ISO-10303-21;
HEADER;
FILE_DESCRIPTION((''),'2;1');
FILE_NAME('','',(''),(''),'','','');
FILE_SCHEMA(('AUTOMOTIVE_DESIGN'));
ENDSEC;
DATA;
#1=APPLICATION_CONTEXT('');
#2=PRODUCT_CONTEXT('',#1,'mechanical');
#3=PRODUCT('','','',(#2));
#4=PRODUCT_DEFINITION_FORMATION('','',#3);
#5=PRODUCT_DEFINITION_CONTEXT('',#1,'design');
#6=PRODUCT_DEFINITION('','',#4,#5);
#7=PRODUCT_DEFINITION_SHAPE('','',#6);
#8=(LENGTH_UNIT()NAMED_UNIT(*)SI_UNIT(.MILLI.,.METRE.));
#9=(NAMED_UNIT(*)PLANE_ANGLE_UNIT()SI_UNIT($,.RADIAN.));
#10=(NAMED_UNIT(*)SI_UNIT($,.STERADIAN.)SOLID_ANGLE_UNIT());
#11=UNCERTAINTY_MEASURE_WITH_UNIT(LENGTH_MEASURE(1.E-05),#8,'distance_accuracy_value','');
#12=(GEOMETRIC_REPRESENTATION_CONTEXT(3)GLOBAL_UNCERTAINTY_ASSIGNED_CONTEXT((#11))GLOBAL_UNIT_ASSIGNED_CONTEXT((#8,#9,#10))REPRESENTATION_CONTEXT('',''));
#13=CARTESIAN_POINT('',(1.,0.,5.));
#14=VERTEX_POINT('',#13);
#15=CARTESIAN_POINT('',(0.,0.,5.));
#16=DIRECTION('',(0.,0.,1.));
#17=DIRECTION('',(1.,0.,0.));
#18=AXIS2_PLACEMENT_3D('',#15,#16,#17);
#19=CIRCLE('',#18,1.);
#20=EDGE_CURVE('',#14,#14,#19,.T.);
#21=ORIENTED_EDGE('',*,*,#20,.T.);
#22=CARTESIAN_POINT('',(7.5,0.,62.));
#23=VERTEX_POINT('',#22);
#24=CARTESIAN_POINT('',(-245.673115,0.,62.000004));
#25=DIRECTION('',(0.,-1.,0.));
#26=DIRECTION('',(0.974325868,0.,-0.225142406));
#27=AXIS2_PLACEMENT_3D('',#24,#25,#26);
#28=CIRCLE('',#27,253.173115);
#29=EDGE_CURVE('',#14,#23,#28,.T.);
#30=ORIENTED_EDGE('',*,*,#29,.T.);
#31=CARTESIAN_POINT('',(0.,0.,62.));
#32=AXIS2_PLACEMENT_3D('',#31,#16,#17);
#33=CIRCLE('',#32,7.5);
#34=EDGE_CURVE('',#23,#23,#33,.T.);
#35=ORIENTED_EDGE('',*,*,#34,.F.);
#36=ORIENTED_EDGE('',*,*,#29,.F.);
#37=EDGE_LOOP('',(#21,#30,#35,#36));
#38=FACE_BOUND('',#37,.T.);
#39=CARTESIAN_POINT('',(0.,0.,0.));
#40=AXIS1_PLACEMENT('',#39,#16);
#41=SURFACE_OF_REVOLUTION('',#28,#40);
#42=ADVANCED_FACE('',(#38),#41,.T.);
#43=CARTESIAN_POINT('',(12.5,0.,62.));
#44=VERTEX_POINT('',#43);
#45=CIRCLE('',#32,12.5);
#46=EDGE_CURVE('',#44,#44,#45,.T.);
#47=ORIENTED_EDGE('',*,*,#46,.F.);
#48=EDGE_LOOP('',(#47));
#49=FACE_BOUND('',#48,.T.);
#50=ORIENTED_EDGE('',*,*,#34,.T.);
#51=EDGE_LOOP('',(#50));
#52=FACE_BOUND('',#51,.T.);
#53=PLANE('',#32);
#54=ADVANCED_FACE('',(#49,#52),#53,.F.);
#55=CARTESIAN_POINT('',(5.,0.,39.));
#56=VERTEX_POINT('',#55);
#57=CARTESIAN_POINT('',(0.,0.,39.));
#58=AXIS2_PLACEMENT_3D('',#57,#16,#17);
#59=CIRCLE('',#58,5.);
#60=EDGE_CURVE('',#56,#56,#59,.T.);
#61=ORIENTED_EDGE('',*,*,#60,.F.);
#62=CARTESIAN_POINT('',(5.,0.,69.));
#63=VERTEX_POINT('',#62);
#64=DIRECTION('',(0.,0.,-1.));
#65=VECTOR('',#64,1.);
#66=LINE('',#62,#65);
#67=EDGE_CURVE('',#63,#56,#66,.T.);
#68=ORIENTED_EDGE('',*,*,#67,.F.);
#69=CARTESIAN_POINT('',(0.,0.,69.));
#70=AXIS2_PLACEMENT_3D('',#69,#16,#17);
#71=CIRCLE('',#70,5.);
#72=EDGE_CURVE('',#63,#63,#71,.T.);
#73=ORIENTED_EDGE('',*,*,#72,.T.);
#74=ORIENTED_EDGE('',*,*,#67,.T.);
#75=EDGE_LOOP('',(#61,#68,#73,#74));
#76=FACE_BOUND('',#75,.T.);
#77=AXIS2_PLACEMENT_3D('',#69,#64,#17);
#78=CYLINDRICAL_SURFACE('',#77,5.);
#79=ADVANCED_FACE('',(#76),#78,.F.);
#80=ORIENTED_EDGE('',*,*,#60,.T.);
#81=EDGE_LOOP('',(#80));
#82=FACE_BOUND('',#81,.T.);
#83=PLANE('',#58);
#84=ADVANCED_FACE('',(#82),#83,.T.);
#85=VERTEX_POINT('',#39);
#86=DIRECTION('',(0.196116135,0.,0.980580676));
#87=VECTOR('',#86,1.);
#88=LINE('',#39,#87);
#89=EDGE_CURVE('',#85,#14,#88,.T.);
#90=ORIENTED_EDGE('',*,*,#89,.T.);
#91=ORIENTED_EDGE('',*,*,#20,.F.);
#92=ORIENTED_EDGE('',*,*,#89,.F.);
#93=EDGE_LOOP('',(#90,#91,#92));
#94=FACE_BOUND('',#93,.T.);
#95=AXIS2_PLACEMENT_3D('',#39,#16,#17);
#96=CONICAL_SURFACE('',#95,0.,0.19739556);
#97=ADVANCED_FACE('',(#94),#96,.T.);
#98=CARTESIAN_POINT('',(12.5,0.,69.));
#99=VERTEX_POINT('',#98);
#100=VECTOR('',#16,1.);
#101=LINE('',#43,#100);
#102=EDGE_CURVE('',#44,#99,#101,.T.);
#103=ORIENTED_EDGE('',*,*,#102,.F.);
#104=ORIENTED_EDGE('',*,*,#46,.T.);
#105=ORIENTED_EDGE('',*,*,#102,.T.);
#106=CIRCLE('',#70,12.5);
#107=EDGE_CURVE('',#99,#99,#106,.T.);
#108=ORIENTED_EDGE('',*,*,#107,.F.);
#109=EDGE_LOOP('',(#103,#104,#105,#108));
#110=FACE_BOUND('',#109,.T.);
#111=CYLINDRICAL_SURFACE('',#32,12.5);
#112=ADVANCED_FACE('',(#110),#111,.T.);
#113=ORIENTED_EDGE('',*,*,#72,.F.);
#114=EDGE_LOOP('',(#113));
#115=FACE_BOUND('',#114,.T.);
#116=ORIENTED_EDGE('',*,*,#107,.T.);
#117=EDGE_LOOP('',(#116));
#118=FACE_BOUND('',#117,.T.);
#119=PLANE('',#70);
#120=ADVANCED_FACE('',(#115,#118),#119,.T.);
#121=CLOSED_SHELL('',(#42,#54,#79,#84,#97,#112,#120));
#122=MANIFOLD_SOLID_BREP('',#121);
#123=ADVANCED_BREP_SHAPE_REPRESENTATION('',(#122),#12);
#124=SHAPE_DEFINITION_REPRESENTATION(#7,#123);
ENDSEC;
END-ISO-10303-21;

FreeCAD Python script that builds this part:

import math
import FreeCAD as App
import Part
import Sketcher
from FreeCAD import Vector

doc = App.newDocument("Part")
body = doc.addObject("PartDesign::Body", "Body")

sketch1 = doc.addObject("Sketcher::SketchObject", "Sketch")
body.addObject(sketch1)
sketch1.AttachmentSupport = (doc.XZ_Plane, [""])
sketch1.MapMode = "FlatFace"
sketch1.addGeometry([
    Part.LineSegment(Vector(8, 62, 0), Vector(12, 62, 0)),
    Part.LineSegment(Vector(12, 62, 0), Vector(12, 69, 0)),
    Part.LineSegment(Vector(12, 69, 0), Vector(5, 69, 0)),
    Part.LineSegment(Vector(5, 69, 0), Vector(5, 39, 0)),
    Part.LineSegment(Vector(5, 39, 0), Vector(0, 39, 0)),
    Part.LineSegment(Vector(0, 39, 0), Vector(0, 0, 0)),
    Part.LineSegment(Vector(0, 0, 0), Vector(1, 5, 0)),
    Part.ArcOfCircle(Part.Circle(Vector(-246, 62, 0), Vector(0, 0, 1), 253), math.radians(-13.01), math.radians(0)),
], False)
sketch1.addConstraint([
    Sketcher.Constraint("Coincident", 0, 2, 1, 1),
    Sketcher.Constraint("Coincident", 1, 2, 2, 1),
    Sketcher.Constraint("Coincident", 2, 2, 3, 1),
    Sketcher.Constraint("Coincident", 3, 2, 4, 1),
    Sketcher.Constraint("Coincident", 4, 2, 5, 1),
    Sketcher.Constraint("Coincident", 5, 2, 6, 1),
    Sketcher.Constraint("Coincident", 6, 2, 7, 1),
    Sketcher.Constraint("Coincident", 7, 2, 0, 1),
    Sketcher.Constraint("Horizontal", 0),
    Sketcher.Constraint("Vertical", 1),
    Sketcher.Constraint("Horizontal", 2),
    Sketcher.Constraint("Vertical", 3),
    Sketcher.Constraint("Horizontal", 4),
    Sketcher.Constraint("Vertical", 5),
    Sketcher.Constraint("Coincident", 5, 2, -1, 1),
    Sketcher.Constraint("Equal", 0, 4),
    Sketcher.Constraint("DistanceX", 0, 1, 0, 2, 5.0),
    Sketcher.Constraint("DistanceY", 1, 1, 1, 2, 7.0),
    Sketcher.Constraint("DistanceY", 3, 2, 3, 1, 30.0),
    Sketcher.Constraint("DistanceY", 5, 2, 5, 1, 39.0),
    Sketcher.Constraint("DistanceX", 2, 2, 2, 1, 7.5),
    Sketcher.Constraint("DistanceX", -1, 1, 6, 2, 1.0),
    Sketcher.Constraint("DistanceY", -1, 1, 6, 2, 5.0),
    Sketcher.Constraint("Radius", 7, 253.173115),
])
revolution = doc.addObject("PartDesign::Revolution", "Revolution")
body.addObject(revolution)
revolution.Profile = sketch1
revolution.ReferenceAxis = (sketch1, ["V_Axis"])
revolution.Angle = 360

doc.recompute()
